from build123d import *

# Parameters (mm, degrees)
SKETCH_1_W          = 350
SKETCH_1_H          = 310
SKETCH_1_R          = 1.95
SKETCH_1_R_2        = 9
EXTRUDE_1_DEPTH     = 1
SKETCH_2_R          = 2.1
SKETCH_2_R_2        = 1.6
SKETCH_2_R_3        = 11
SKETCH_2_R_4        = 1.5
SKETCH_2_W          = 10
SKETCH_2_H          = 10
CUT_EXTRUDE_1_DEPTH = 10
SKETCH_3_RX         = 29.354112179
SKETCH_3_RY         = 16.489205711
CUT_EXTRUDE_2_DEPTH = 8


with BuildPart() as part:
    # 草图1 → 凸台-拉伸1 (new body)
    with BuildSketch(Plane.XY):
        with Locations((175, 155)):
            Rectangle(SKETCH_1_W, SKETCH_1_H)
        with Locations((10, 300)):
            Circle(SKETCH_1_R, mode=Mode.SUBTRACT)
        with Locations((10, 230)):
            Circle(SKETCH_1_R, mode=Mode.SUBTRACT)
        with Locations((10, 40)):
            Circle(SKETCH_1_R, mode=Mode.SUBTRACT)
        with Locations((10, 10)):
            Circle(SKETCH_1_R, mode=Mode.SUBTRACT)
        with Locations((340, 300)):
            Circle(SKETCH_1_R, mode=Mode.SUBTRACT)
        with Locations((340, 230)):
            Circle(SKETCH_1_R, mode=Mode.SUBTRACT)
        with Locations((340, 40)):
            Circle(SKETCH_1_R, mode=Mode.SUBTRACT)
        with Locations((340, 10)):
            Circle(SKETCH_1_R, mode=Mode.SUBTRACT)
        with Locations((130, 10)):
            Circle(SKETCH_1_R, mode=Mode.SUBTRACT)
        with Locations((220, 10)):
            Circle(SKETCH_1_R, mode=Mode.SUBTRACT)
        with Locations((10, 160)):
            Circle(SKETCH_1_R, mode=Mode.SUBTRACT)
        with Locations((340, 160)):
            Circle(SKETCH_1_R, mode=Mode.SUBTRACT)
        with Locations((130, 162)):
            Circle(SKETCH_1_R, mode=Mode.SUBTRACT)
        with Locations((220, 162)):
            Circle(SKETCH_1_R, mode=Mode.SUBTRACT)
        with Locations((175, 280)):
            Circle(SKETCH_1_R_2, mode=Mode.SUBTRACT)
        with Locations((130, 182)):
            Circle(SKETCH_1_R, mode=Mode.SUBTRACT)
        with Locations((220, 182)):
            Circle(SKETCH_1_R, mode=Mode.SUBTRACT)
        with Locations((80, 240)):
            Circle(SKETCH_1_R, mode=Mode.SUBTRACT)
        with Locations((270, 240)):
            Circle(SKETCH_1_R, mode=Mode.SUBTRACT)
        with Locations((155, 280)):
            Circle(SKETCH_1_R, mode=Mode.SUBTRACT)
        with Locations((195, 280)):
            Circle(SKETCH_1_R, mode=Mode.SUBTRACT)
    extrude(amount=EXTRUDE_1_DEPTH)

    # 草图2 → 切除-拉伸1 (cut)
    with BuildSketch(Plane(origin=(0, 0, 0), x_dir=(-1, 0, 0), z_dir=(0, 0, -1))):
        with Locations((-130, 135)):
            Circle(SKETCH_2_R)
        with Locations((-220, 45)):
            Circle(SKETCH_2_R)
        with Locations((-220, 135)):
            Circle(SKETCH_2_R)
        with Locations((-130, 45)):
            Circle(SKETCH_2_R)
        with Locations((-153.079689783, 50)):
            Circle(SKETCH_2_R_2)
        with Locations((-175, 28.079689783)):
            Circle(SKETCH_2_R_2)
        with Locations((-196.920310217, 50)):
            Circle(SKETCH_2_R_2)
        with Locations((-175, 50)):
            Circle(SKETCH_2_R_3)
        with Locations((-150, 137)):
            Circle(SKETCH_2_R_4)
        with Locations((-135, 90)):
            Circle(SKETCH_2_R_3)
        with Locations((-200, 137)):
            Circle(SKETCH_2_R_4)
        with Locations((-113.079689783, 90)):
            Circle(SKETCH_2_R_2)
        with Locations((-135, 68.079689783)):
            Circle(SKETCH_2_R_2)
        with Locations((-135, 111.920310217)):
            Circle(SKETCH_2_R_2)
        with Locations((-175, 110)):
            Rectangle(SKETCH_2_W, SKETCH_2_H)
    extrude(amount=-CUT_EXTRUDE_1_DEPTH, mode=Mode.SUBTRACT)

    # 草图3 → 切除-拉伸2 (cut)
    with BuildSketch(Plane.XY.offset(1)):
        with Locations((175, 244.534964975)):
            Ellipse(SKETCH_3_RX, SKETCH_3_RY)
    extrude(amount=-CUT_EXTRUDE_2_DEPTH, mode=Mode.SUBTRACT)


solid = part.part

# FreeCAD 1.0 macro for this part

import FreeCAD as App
import Part
import Sketcher
Q = App.Units.Quantity


def add_polygon(sketch, points):
    """Adds a closed chain of lines whose ends are joined by coincident constraints."""
    first, n = sketch.GeometryCount, len(points)
    for a, b in zip(points, points[1:] + points[:1]):
        sketch.addGeometry(Part.LineSegment(App.Vector(*a, 0), App.Vector(*b, 0)), False)
    for i in range(n):
        sketch.addConstraint(Sketcher.Constraint("Coincident", first + i, 2, first + (i + 1) % n, 1))

doc = App.newDocument("Part")
params = doc.addObject("Spreadsheet::Sheet", "Params")
for row, (alias, value) in enumerate([
    ("sketch1_diameter", "18 mm"),
    ("sketch1_diameter2", "3.9 mm"),
    ("sketch1_width", "350 mm"),
    ("sketch1_height", "310 mm"),
    ("pad1_length", "1 mm"),
    ("sketch2_diameter", "22 mm"),
    ("sketch2_diameter2", "3 mm"),
    ("sketch2_diameter3", "4.2 mm"),
    ("sketch2_diameter4", "3.2 mm"),
    ("sketch2_width", "10 mm"),
    ("pocket1_length", "10 mm"),
    ("pocket2_length", "8 mm"),
], start=1):
    params.set(f"A{row}", alias)
    params.set(f"B{row}", "=" + value)
    params.setAlias(f"B{row}", alias)

body = doc.addObject("PartDesign::Body", "Body")

# Sketch on XY plane
sketch1 = body.newObject("Sketcher::SketchObject", "Sketch")
sketch1.AttachmentSupport = (doc.getObject("XY_Plane"), [""])
sketch1.MapMode = "FlatFace"
add_polygon(sketch1, [(0, 310), (0, 0), (350, 0), (350, 310)])  # lines 0-3
sketch1.addGeometry(Part.Circle(App.Vector(10, 10, 0), App.Vector(0, 0, 1), 1.9), False)  # 4
sketch1.addGeometry(Part.Circle(App.Vector(10, 40, 0), App.Vector(0, 0, 1), 1.9), False)  # 5
sketch1.addGeometry(Part.Circle(App.Vector(130, 10, 0), App.Vector(0, 0, 1), 1.9), False)  # 6
sketch1.addGeometry(Part.Circle(App.Vector(220, 10, 0), App.Vector(0, 0, 1), 1.9), False)  # 7
sketch1.addGeometry(Part.Circle(App.Vector(340, 10, 0), App.Vector(0, 0, 1), 1.9), False)  # 8
sketch1.addGeometry(Part.Circle(App.Vector(340, 40, 0), App.Vector(0, 0, 1), 1.9), False)  # 9
sketch1.addGeometry(Part.Circle(App.Vector(10, 160, 0), App.Vector(0, 0, 1), 1.9), False)  # 10
sketch1.addGeometry(Part.Circle(App.Vector(130, 162, 0), App.Vector(0, 0, 1), 1.9), False)  # 11
sketch1.addGeometry(Part.Circle(App.Vector(130, 182, 0), App.Vector(0, 0, 1), 1.9), False)  # 12
sketch1.addGeometry(Part.Circle(App.Vector(10, 230, 0), App.Vector(0, 0, 1), 1.9), False)  # 13
sketch1.addGeometry(Part.Circle(App.Vector(80, 240, 0), App.Vector(0, 0, 1), 1.9), False)  # 14
sketch1.addGeometry(Part.Circle(App.Vector(10, 300, 0), App.Vector(0, 0, 1), 1.9), False)  # 15
sketch1.addGeometry(Part.Circle(App.Vector(155, 280, 0), App.Vector(0, 0, 1), 1.9), False)  # 16
sketch1.addGeometry(Part.Circle(App.Vector(220, 162, 0), App.Vector(0, 0, 1), 1.9), False)  # 17
sketch1.addGeometry(Part.Circle(App.Vector(220, 182, 0), App.Vector(0, 0, 1), 1.9), False)  # 18
sketch1.addGeometry(Part.Circle(App.Vector(340, 160, 0), App.Vector(0, 0, 1), 1.9), False)  # 19
sketch1.addGeometry(Part.Circle(App.Vector(175, 280, 0), App.Vector(0, 0, 1), 9), False)  # 20
sketch1.addGeometry(Part.Circle(App.Vector(195, 280, 0), App.Vector(0, 0, 1), 1.9), False)  # 21
sketch1.addGeometry(Part.Circle(App.Vector(270, 240, 0), App.Vector(0, 0, 1), 1.9), False)  # 22
sketch1.addGeometry(Part.Circle(App.Vector(340, 230, 0), App.Vector(0, 0, 1), 1.9), False)  # 23
sketch1.addGeometry(Part.Circle(App.Vector(340, 300, 0), App.Vector(0, 0, 1), 1.9), False)  # 24
sketch1.addConstraint(Sketcher.Constraint("Vertical", 0))
sketch1.addConstraint(Sketcher.Constraint("Horizontal", 1))
sketch1.addConstraint(Sketcher.Constraint("Vertical", 2))
sketch1.addConstraint(Sketcher.Constraint("Horizontal", 3))
sketch1.addConstraint(Sketcher.Constraint("Coincident", 0, 2, -1, 1))
sketch1.addConstraint(Sketcher.Constraint("Equal", 4, 5))
sketch1.addConstraint(Sketcher.Constraint("Equal", 5, 6))
sketch1.addConstraint(Sketcher.Constraint("Equal", 6, 7))
sketch1.addConstraint(Sketcher.Constraint("Equal", 7, 8))
sketch1.addConstraint(Sketcher.Constraint("Equal", 8, 9))
sketch1.addConstraint(Sketcher.Constraint("Equal", 9, 10))
sketch1.addConstraint(Sketcher.Constraint("Equal", 10, 11))
sketch1.addConstraint(Sketcher.Constraint("Equal", 11, 12))
sketch1.addConstraint(Sketcher.Constraint("Equal", 12, 13))
sketch1.addConstraint(Sketcher.Constraint("Equal", 13, 14))
sketch1.addConstraint(Sketcher.Constraint("Equal", 14, 15))
sketch1.addConstraint(Sketcher.Constraint("Equal", 15, 16))
sketch1.addConstraint(Sketcher.Constraint("Equal", 16, 17))
sketch1.addConstraint(Sketcher.Constraint("Equal", 17, 18))
sketch1.addConstraint(Sketcher.Constraint("Equal", 18, 19))
sketch1.addConstraint(Sketcher.Constraint("Equal", 19, 21))
sketch1.addConstraint(Sketcher.Constraint("Equal", 21, 22))
sketch1.addConstraint(Sketcher.Constraint("Equal", 22, 23))
sketch1.addConstraint(Sketcher.Constraint("Equal", 23, 24))
sketch1.addConstraint(Sketcher.Constraint("Horizontal", 4, 3, 6, 3))
sketch1.addConstraint(Sketcher.Constraint("Horizontal", 6, 3, 7, 3))
sketch1.addConstraint(Sketcher.Constraint("Horizontal", 7, 3, 8, 3))
sketch1.addConstraint(Sketcher.Constraint("Horizontal", 5, 3, 9, 3))
sketch1.addConstraint(Sketcher.Constraint("Horizontal", 11, 3, 17, 3))
sketch1.addConstraint(Sketcher.Constraint("Horizontal", 12, 3, 18, 3))
sketch1.addConstraint(Sketcher.Constraint("Horizontal", 10, 3, 19, 3))
sketch1.addConstraint(Sketcher.Constraint("Horizontal", 16, 3, 20, 3))
sketch1.addConstraint(Sketcher.Constraint("Horizontal", 20, 3, 21, 3))
sketch1.addConstraint(Sketcher.Constraint("Horizontal", 14, 3, 22, 3))
sketch1.addConstraint(Sketcher.Constraint("Horizontal", 13, 3, 23, 3))
sketch1.addConstraint(Sketcher.Constraint("Horizontal", 15, 3, 24, 3))
sketch1.addConstraint(Sketcher.Constraint("Vertical", 4, 3, 5, 3))
sketch1.addConstraint(Sketcher.Constraint("Vertical", 8, 3, 9, 3))
sketch1.addConstraint(Sketcher.Constraint("Vertical", 5, 3, 10, 3))
sketch1.addConstraint(Sketcher.Constraint("Vertical", 6, 3, 11, 3))
sketch1.addConstraint(Sketcher.Constraint("Vertical", 11, 3, 12, 3))
sketch1.addConstraint(Sketcher.Constraint("Vertical", 10, 3, 13, 3))
sketch1.addConstraint(Sketcher.Constraint("Vertical", 13, 3, 15, 3))
sketch1.addConstraint(Sketcher.Constraint("Vertical", 7, 3, 17, 3))
sketch1.addConstraint(Sketcher.Constraint("Vertical", 17, 3, 18, 3))
sketch1.addConstraint(Sketcher.Constraint("Vertical", 9, 3, 19, 3))
sketch1.addConstraint(Sketcher.Constraint("Vertical", 19, 3, 23, 3))
sketch1.addConstraint(Sketcher.Constraint("Vertical", 23, 3, 24, 3))
sketch1.addConstraint(Sketcher.Constraint("Diameter", 20, Q("18 mm")))
sketch1.addConstraint(Sketcher.Constraint("Diameter", 4, Q("3.9 mm")))
sketch1.addConstraint(Sketcher.Constraint("DistanceX", 1, 1, 1, 2, Q("350 mm")))
sketch1.addConstraint(Sketcher.Constraint("DistanceY", 0, 2, 0, 1, Q("310 mm")))
sketch1.addConstraint(Sketcher.Constraint("DistanceX", -1, 1, 4, 3, Q("10 mm")))
sketch1.addConstraint(Sketcher.Constraint("DistanceY", -1, 1, 4, 3, Q("10 mm")))
sketch1.addConstraint(Sketcher.Constraint("DistanceY", -1, 1, 5, 3, Q("40 mm")))
sketch1.addConstraint(Sketcher.Constraint("DistanceX", -1, 1, 6, 3, Q("130 mm")))
sketch1.addConstraint(Sketcher.Constraint("DistanceX", -1, 1, 7, 3, Q("220 mm")))
sketch1.addConstraint(Sketcher.Constraint("DistanceX", -1, 1, 8, 3, Q("340 mm")))
sketch1.addConstraint(Sketcher.Constraint("DistanceY", -1, 1, 10, 3, Q("160 mm")))
sketch1.addConstraint(Sketcher.Constraint("DistanceY", -1, 1, 11, 3, Q("162 mm")))
sketch1.addConstraint(Sketcher.Constraint("DistanceY", -1, 1, 12, 3, Q("182 mm")))
sketch1.addConstraint(Sketcher.Constraint("DistanceY", -1, 1, 13, 3, Q("230 mm")))
sketch1.addConstraint(Sketcher.Constraint("DistanceX", -1, 1, 14, 3, Q("80 mm")))
sketch1.addConstraint(Sketcher.Constraint("DistanceY", -1, 1, 14, 3, Q("240 mm")))
sketch1.addConstraint(Sketcher.Constraint("DistanceY", -1, 1, 15, 3, Q("300 mm")))
sketch1.addConstraint(Sketcher.Constraint("DistanceX", -1, 1, 16, 3, Q("155 mm")))
sketch1.addConstraint(Sketcher.Constraint("DistanceY", -1, 1, 16, 3, Q("280 mm")))
sketch1.addConstraint(Sketcher.Constraint("DistanceX", -1, 1, 20, 3, Q("175 mm")))
sketch1.addConstraint(Sketcher.Constraint("DistanceX", -1, 1, 21, 3, Q("195 mm")))
sketch1.addConstraint(Sketcher.Constraint("DistanceX", -1, 1, 22, 3, Q("270 mm")))
sketch1.setExpression("Constraints[52]", "Params.sketch1_diameter")
sketch1.setExpression("Constraints[53]", "Params.sketch1_diameter2")
sketch1.setExpression("Constraints[54]", "Params.sketch1_width")
sketch1.setExpression("Constraints[55]", "Params.sketch1_height")
pad1 = body.newObject("PartDesign::Pad", "Pad")
pad1.Profile = sketch1
pad1.setExpression("Length", "Params.pad1_length")

# Sketch on XY plane
sketch2 = body.newObject("Sketcher::SketchObject", "Sketch001")
sketch2.AttachmentSupport = (doc.getObject("XY_Plane"), [""])
sketch2.MapMode = "FlatFace"
sketch2.addGeometry(Part.Circle(App.Vector(130, 135, 0), App.Vector(0, 0, 1), 2.1), False)  # 0
sketch2.addGeometry(Part.Circle(App.Vector(220, 45, 0), App.Vector(0, 0, 1), 2.1), False)  # 1
sketch2.addGeometry(Part.Circle(App.Vector(220, 135, 0), App.Vector(0, 0, 1), 2.1), False)  # 2
sketch2.addGeometry(Part.Circle(App.Vector(130, 45, 0), App.Vector(0, 0, 1), 2.1), False)  # 3
sketch2.addGeometry(Part.Circle(App.Vector(153.1, 50, 0), App.Vector(0, 0, 1), 1.6), False)  # 4
sketch2.addGeometry(Part.Circle(App.Vector(175, 28.1, 0), App.Vector(0, 0, 1), 1.6), False)  # 5
sketch2.addGeometry(Part.Circle(App.Vector(196.9, 50, 0), App.Vector(0, 0, 1), 1.6), False)  # 6
sketch2.addGeometry(Part.Circle(App.Vector(175, 50, 0), App.Vector(0, 0, 1), 11), False)  # 7
sketch2.addGeometry(Part.Circle(App.Vector(150, 137, 0), App.Vector(0, 0, 1), 1.5), False)  # 8
sketch2.addGeometry(Part.Circle(App.Vector(135, 90, 0), App.Vector(0, 0, 1), 11), False)  # 9
sketch2.addGeometry(Part.Circle(App.Vector(200, 137, 0), App.Vector(0, 0, 1), 1.5), False)  # 10
sketch2.addGeometry(Part.Circle(App.Vector(113.1, 90, 0), App.Vector(0, 0, 1), 1.6), False)  # 11
sketch2.addGeometry(Part.Circle(App.Vector(135, 68.1, 0), App.Vector(0, 0, 1), 1.6), False)  # 12
sketch2.addGeometry(Part.Circle(App.Vector(135, 111.9, 0), App.Vector(0, 0, 1), 1.6), False)  # 13
add_polygon(sketch2, [(180, 115), (180, 105), (170, 105), (170, 115)])  # lines 14-17
sketch2.addConstraint(Sketcher.Constraint("Vertical", 14))
sketch2.addConstraint(Sketcher.Constraint("Horizontal", 15))
sketch2.addConstraint(Sketcher.Constraint("Vertical", 16))
sketch2.addConstraint(Sketcher.Constraint("Horizontal", 17))
sketch2.addConstraint(Sketcher.Constraint("Equal", 0, 1))
sketch2.addConstraint(Sketcher.Constraint("Equal", 1, 2))
sketch2.addConstraint(Sketcher.Constraint("Equal", 2, 3))
sketch2.addConstraint(Sketcher.Constraint("Equal", 4, 5))
sketch2.addConstraint(Sketcher.Constraint("Equal", 5, 6))
sketch2.addConstraint(Sketcher.Constraint("Equal", 7, 9))
sketch2.addConstraint(Sketcher.Constraint("Equal", 8, 10))
sketch2.addConstraint(Sketcher.Constraint("Equal", 6, 11))
sketch2.addConstraint(Sketcher.Constraint("Equal", 11, 12))
sketch2.addConstraint(Sketcher.Constraint("Equal", 12, 13))
sketch2.addConstraint(Sketcher.Constraint("Horizontal", 0, 3, 2, 3))
sketch2.addConstraint(Sketcher.Constraint("Horizontal", 1, 3, 3, 3))
sketch2.addConstraint(Sketcher.Constraint("Horizontal", 4, 3, 6, 3))
sketch2.addConstraint(Sketcher.Constraint("Horizontal", 6, 3, 7, 3))
sketch2.addConstraint(Sketcher.Constraint("Horizontal", 8, 3, 10, 3))
sketch2.addConstraint(Sketcher.Constraint("Horizontal", 9, 3, 11, 3))
sketch2.addConstraint(Sketcher.Constraint("Vertical", 1, 3, 2, 3))
sketch2.addConstraint(Sketcher.Constraint("Vertical", 0, 3, 3, 3))
sketch2.addConstraint(Sketcher.Constraint("Vertical", 5, 3, 7, 3))
sketch2.addConstraint(Sketcher.Constraint("Vertical", 9, 3, 12, 3))
sketch2.addConstraint(Sketcher.Constraint("Vertical", 12, 3, 13, 3))
sketch2.addConstraint(Sketcher.Constraint("Equal", 17, 14))
sketch2.addConstraint(Sketcher.Constraint("Diameter", 7, Q("22 mm")))
sketch2.addConstraint(Sketcher.Constraint("Diameter", 8, Q("3 mm")))
sketch2.addConstraint(Sketcher.Constraint("Diameter", 0, Q("4.2 mm")))
sketch2.addConstraint(Sketcher.Constraint("Diameter", 4, Q("3.2 mm")))
sketch2.addConstraint(Sketcher.Constraint("DistanceX", 15, 2, 15, 1, Q("10 mm")))
sketch2.addConstraint(Sketcher.Constraint("DistanceX", -1, 1, 0, 3, Q("130 mm")))
sketch2.addConstraint(Sketcher.Constraint("DistanceY", -1, 1, 0, 3, Q("135 mm")))
sketch2.addConstraint(Sketcher.Constraint("DistanceX", -1, 1, 1, 3, Q("220 mm")))
sketch2.addConstraint(Sketcher.Constraint("DistanceY", -1, 1, 1, 3, Q("45 mm")))
sketch2.addConstraint(Sketcher.Constraint("DistanceY", -1, 1, 4, 3, Q("50 mm")))
sketch2.addConstraint(Sketcher.Constraint("DistanceX", -1, 1, 5, 3, Q("175 mm")))
sketch2.addConstraint(Sketcher.Constraint("DistanceX", -1, 1, 8, 3, Q("150 mm")))
sketch2.addConstraint(Sketcher.Constraint("DistanceY", -1, 1, 8, 3, Q("137 mm")))
sketch2.addConstraint(Sketcher.Constraint("DistanceX", -1, 1, 9, 3, Q("135 mm")))
sketch2.addConstraint(Sketcher.Constraint("DistanceY", -1, 1, 9, 3, Q("90 mm")))
sketch2.addConstraint(Sketcher.Constraint("DistanceX", -1, 1, 10, 3, Q("200 mm")))
sketch2.addConstraint(Sketcher.Constraint("DistanceX", -1, 1, 14, 2, Q("180 mm")))
sketch2.addConstraint(Sketcher.Constraint("DistanceY", -1, 1, 14, 2, Q("105 mm")))
sketch2.addConstraint(Sketcher.Constraint("DistanceX", 11, 3, 4, 3, Q("40 mm")))
sketch2.addConstraint(Sketcher.Constraint("DistanceX", -1, 1, 4, 3, Q("153.07969 mm")))
sketch2.addConstraint(Sketcher.Constraint("DistanceY", -1, 1, 5, 3, Q("28.07969 mm")))
sketch2.addConstraint(Sketcher.Constraint("DistanceX", -1, 1, 6, 3, Q("196.92031 mm")))
sketch2.addConstraint(Sketcher.Constraint("DistanceY", -1, 1, 12, 3, Q("68.07969 mm")))
sketch2.addConstraint(Sketcher.Constraint("DistanceY", -1, 1, 13, 3, Q("111.92031 mm")))
sketch2.setExpression("Constraints[30]", "Params.sketch2_diameter")
sketch2.setExpression("Constraints[31]", "Params.sketch2_diameter2")
sketch2.setExpression("Constraints[32]", "Params.sketch2_diameter3")
sketch2.setExpression("Constraints[33]", "Params.sketch2_diameter4")
sketch2.setExpression("Constraints[34]", "Params.sketch2_width")
pocket1 = body.newObject("PartDesign::Pocket", "Pocket")
pocket1.Profile = sketch2
pocket1.setExpression("Length", "Params.pocket1_length")
pocket1.Reversed = True

# Sketch on XY plane
sketch3 = body.newObject("Sketcher::SketchObject", "Sketch002")
sketch3.AttachmentSupport = (doc.getObject("XY_Plane"), [""])
sketch3.MapMode = "FlatFace"
sketch3.AttachmentOffset = App.Placement(App.Vector(0, 0, 1), App.Rotation())
sketch3.addGeometry(Part.Ellipse(App.Vector(204.354112, 244.534965, 0), App.Vector(175, 261.024171, 0), App.Vector(175, 244.534965, 0)), False)
sketch3.addConstraint(Sketcher.Constraint("Block", 0))
pocket2 = body.newObject("PartDesign::Pocket", "Pocket001")
pocket2.Profile = sketch3
pocket2.setExpression("Length", "Params.pocket2_length")

doc.recompute()
